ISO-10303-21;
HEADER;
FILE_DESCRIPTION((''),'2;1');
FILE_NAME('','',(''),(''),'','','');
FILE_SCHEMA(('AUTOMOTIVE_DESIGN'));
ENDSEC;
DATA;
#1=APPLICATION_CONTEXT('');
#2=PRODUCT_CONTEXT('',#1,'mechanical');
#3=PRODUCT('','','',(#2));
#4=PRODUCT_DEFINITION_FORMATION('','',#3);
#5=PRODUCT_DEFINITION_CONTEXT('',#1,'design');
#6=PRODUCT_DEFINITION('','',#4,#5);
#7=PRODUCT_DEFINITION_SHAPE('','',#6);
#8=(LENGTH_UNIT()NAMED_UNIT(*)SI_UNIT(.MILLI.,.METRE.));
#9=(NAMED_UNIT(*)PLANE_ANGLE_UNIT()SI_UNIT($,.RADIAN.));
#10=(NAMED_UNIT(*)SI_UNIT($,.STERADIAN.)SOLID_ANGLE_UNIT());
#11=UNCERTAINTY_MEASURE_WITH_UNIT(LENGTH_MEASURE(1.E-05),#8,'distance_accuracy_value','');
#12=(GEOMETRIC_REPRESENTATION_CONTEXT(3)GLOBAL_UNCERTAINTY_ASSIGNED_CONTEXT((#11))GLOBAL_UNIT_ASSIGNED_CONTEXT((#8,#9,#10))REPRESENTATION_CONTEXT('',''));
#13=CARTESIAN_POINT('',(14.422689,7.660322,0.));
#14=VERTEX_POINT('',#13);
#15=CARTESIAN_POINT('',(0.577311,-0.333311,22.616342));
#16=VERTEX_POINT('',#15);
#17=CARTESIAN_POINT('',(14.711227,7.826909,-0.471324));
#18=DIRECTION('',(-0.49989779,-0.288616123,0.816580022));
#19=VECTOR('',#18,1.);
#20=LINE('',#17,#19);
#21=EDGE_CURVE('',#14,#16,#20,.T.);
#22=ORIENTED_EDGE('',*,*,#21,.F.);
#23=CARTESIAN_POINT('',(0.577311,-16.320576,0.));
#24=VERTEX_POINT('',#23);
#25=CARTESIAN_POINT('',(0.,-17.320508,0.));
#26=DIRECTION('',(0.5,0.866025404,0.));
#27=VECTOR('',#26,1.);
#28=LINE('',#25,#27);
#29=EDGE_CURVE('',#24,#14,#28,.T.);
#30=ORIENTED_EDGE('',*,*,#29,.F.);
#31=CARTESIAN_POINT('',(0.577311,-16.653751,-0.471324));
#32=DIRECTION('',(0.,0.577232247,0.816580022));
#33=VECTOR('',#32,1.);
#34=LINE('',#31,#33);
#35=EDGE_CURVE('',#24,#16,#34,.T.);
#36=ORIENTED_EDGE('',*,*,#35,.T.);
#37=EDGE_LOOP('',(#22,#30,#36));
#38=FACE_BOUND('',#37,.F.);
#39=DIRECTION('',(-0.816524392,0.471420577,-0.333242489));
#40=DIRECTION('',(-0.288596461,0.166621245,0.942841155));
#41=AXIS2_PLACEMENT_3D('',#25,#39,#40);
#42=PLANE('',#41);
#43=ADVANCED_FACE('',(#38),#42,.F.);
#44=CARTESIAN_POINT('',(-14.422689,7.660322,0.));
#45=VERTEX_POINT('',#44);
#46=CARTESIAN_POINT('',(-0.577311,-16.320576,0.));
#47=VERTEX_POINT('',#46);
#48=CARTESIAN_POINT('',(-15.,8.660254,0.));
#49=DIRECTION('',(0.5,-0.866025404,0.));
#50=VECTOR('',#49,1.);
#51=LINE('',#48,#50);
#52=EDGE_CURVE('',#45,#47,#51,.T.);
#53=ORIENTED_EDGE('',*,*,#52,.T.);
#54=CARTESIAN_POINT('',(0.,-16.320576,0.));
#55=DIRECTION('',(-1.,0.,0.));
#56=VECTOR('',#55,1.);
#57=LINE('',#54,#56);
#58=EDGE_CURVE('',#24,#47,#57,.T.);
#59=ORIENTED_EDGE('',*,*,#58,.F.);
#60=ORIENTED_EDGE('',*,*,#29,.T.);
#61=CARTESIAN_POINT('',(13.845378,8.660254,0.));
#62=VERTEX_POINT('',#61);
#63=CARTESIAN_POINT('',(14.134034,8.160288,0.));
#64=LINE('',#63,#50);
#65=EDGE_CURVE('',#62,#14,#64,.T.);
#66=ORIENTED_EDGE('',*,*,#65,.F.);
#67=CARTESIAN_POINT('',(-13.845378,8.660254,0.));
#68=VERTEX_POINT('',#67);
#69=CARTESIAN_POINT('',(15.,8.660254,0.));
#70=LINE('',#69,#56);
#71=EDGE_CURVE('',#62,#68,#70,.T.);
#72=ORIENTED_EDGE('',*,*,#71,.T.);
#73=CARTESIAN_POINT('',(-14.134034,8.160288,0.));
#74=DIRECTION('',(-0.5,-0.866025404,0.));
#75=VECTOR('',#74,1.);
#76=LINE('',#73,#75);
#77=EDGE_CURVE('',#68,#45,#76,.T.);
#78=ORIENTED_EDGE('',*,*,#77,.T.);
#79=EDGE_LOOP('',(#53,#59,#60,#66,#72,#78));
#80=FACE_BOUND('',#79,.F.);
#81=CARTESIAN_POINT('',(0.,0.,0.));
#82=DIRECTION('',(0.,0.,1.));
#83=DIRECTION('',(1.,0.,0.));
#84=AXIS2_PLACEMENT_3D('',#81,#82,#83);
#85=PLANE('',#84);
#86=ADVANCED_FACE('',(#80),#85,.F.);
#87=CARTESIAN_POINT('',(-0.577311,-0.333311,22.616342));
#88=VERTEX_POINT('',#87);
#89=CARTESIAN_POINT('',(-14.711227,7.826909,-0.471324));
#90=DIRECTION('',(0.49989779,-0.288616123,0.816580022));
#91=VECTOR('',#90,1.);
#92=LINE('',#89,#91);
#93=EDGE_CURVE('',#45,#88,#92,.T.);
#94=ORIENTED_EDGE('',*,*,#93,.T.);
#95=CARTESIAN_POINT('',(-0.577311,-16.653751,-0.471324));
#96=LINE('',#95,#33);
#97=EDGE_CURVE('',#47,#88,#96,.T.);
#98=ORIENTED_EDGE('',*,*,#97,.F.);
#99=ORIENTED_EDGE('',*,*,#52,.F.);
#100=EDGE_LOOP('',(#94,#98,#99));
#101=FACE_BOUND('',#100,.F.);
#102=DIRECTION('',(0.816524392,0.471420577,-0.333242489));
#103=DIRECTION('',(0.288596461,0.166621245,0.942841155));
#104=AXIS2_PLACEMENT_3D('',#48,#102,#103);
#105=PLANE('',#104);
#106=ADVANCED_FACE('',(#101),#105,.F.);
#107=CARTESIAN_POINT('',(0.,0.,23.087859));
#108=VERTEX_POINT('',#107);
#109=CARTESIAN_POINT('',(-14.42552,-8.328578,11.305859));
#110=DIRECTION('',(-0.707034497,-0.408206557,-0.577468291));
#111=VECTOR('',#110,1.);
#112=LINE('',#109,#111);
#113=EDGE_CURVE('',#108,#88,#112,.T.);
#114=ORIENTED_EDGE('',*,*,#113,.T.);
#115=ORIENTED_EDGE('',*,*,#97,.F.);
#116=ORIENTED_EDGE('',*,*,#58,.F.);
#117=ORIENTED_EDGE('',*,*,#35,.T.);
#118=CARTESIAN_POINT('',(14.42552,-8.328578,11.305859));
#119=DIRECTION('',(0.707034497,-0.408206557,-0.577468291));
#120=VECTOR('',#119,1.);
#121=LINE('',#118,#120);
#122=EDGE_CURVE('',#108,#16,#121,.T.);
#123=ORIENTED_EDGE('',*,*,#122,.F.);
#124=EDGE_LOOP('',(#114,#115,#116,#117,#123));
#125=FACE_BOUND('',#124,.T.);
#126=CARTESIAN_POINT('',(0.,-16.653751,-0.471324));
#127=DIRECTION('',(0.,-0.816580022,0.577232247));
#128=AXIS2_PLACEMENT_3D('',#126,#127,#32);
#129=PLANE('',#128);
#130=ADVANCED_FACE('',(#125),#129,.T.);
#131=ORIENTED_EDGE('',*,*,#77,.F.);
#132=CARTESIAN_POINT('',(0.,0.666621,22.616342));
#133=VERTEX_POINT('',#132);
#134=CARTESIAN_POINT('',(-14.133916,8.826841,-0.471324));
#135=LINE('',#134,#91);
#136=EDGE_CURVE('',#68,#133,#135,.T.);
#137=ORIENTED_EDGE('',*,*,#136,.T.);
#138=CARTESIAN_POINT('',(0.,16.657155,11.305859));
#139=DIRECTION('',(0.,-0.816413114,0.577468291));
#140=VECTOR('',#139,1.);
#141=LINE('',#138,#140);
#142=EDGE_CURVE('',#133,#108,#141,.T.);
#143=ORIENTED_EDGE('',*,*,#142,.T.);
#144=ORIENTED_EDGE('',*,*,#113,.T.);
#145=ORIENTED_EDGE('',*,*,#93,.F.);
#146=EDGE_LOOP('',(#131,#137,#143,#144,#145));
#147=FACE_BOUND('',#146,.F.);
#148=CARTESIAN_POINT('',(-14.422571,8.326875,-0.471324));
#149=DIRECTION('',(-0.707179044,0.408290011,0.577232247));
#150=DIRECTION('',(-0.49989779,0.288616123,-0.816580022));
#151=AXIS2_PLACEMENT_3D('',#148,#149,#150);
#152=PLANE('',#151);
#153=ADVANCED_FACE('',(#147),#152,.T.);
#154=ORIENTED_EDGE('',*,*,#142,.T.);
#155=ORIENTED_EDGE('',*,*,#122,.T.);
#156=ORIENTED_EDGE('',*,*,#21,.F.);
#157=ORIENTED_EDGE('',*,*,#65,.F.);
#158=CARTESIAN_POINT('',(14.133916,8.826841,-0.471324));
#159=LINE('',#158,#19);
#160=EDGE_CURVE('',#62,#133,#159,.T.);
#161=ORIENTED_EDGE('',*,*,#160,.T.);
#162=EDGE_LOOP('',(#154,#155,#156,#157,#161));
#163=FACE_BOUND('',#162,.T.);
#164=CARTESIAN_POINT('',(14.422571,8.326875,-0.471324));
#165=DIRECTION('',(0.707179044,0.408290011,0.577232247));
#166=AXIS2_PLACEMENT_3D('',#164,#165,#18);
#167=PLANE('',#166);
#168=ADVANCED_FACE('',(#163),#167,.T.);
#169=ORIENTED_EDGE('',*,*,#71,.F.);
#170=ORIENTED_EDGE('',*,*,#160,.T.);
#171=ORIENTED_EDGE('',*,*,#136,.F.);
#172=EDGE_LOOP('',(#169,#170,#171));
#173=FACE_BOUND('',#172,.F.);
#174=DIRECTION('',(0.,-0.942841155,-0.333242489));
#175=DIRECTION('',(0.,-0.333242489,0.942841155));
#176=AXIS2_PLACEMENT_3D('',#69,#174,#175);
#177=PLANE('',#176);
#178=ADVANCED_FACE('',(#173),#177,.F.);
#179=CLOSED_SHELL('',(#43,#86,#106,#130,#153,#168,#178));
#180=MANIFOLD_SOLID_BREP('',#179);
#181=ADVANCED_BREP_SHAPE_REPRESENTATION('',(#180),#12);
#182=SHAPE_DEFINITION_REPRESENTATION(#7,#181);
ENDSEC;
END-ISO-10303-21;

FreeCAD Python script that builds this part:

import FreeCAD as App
import Part
import Sketcher
from FreeCAD import Vector
Q = App.Units.Quantity


def edges_at(feature, points):
    """Names of the edges that pass closest to the given points."""
    edges = feature.Shape.Edges
    near = lambda p: min(range(len(edges)), key=lambda i: edges[i].distToShape(Part.Vertex(*p))[0])
    return sorted({f"Edge{near(p) + 1}" for p in points})


def add_polygon(sketch, points):
    """Adds a closed chain of lines whose ends are joined by coincident constraints."""
    first, n = sketch.GeometryCount, len(points)
    for a, b in zip(points, points[1:] + points[:1]):
        sketch.addGeometry(Part.LineSegment(App.Vector(*a, 0), App.Vector(*b, 0)), False)
    for i in range(n):
        sketch.addConstraint(Sketcher.Constraint("Coincident", first + i, 2, first + (i + 1) % n, 1))

doc = App.newDocument("Part")
params = doc.addObject("Spreadsheet::Sheet", "Params")
for row, (alias, value) in enumerate([
    ("sketch1_width", "30 mm"),
    ("pad1_length", "24.495 mm"),
    ("pad1_taper", "-19.4657 deg"),
    ("chamfer_size", "1 mm"),
    ("chamfer2_size", "1 mm"),
    ("chamfer3_size", "1 mm"),
], start=1):
    params.set(f"A{row}", alias)
    params.set(f"B{row}", "=" + value)
    params.setAlias(f"B{row}", alias)

body = doc.addObject("PartDesign::Body", "Body")

# Sketch on XY plane
sketch1 = body.newObject("Sketcher::SketchObject", "Sketch")
sketch1.AttachmentSupport = (doc.getObject("XY_Plane"), [""])
sketch1.MapMode = "FlatFace"
add_polygon(sketch1, [(15, 9), (-15, 9), (0, -17)])  # lines 0-2
sketch1.addConstraint([
    Sketcher.Constraint("Horizontal", 0),
    Sketcher.Constraint("PointOnObject", 1, 2, -2),
    Sketcher.Constraint("Equal", 1, 2),
    Sketcher.Constraint("DistanceX", 0, 2, 0, 1, Q("30 mm")),
    Sketcher.Constraint("Angle", 1, Q("-60 deg")),
    Sketcher.Constraint("DistanceY", 1, 2, -1, 1, Q("17.320508 mm")),
])
sketch1.setExpression("Constraints[6]", "Params.sketch1_width")
pad1 = body.newObject("PartDesign::Pad", "Pad")
pad1.Profile = sketch1
pad1.setExpression("Length", "Params.pad1_length")
pad1.setExpression("TaperAngle", "Params.pad1_taper")
doc.recompute()

chamfer = body.newObject("PartDesign::Chamfer", "Chamfer")
chamfer.Base = (pad1, edges_at(pad1, [(0, -8.663, 12.248)]))
chamfer.setExpression("Size", "Params.chamfer_size")
doc.recompute()

chamfer2 = body.newObject("PartDesign::Chamfer", "Chamfer001")
chamfer2.Base = (chamfer, edges_at(chamfer, [(7.789, 4.497, 11.78)]))
chamfer2.setExpression("Size", "Params.chamfer2_size")
doc.recompute()

chamfer3 = body.newObject("PartDesign::Chamfer", "Chamfer002")
chamfer3.Base = (chamfer2, edges_at(chamfer2, [(-7.789, 4.497, 11.78)]))
chamfer3.setExpression("Size", "Params.chamfer3_size")

doc.recompute()
